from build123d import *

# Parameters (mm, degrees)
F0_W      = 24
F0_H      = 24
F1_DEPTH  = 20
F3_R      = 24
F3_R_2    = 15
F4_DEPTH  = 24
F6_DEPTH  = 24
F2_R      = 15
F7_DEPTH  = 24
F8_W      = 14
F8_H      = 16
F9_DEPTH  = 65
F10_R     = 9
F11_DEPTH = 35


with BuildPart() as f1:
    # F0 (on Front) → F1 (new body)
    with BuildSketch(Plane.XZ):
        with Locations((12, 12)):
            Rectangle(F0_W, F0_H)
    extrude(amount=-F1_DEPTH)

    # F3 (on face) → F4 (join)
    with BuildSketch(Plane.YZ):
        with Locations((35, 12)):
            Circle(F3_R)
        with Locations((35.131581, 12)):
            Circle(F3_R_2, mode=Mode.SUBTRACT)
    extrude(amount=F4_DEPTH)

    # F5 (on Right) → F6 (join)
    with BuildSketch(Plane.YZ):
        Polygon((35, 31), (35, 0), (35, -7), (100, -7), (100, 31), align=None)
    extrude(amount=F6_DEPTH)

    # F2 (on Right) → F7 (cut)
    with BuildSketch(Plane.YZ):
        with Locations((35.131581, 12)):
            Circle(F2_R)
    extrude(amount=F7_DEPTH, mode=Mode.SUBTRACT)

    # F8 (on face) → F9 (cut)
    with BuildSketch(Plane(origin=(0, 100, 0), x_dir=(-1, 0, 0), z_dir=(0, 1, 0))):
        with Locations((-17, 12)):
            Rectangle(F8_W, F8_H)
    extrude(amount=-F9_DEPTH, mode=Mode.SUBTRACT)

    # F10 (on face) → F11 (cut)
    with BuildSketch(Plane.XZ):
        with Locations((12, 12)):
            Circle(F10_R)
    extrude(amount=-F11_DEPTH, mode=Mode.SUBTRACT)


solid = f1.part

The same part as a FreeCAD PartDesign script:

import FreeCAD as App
import Part
import Sketcher

V = App.Vector
Q = App.Units.Quantity

doc = App.newDocument("Part")
params = doc.addObject("Spreadsheet::Sheet", "Params")
for row, (alias, value) in enumerate([
    ("sketch1_width", "24 mm"),
    ("pad1_length", "20 mm"),
    ("sketch2_diameter", "48 mm"),
    ("sketch2_diameter2", "30 mm"),
    ("pad2_length", "24 mm"),
    ("sketch3_width", "65 mm"),
    ("sketch3_height", "38 mm"),
    ("pad3_length", "24 mm"),
    ("sketch4_diameter", "30 mm"),
    ("pocket1_length", "24 mm"),
    ("sketch5_width", "14 mm"),
    ("sketch5_height", "16 mm"),
    ("pocket2_length", "65 mm"),
    ("sketch6_diameter", "18 mm"),
    ("pocket3_length", "35 mm"),
], start=1):
    params.set(f"A{row}", alias)
    params.set(f"B{row}", "=" + value)
    params.setAlias(f"B{row}", alias)

body = doc.addObject("PartDesign::Body", "Body")

# Sketch on XZ plane
sketch1 = body.newObject("Sketcher::SketchObject", "Sketch")
sketch1.AttachmentSupport = (doc.getObject("XZ_Plane"), [""])
sketch1.MapMode = "FlatFace"
sketch1.addGeometry(Part.LineSegment(V(0, 24, 0), V(0, 0, 0)), False)
sketch1.addGeometry(Part.LineSegment(V(0, 0, 0), V(24, 0, 0)), False)
sketch1.addGeometry(Part.LineSegment(V(24, 0, 0), V(24, 24, 0)), False)
sketch1.addGeometry(Part.LineSegment(V(24, 24, 0), V(0, 24, 0)), False)
sketch1.addConstraint(Sketcher.Constraint("Coincident", 0, 2, 1, 1))
sketch1.addConstraint(Sketcher.Constraint("Coincident", 1, 2, 2, 1))
sketch1.addConstraint(Sketcher.Constraint("Coincident", 2, 2, 3, 1))
sketch1.addConstraint(Sketcher.Constraint("Coincident", 3, 2, 0, 1))
sketch1.addConstraint(Sketcher.Constraint("Vertical", 0))
sketch1.addConstraint(Sketcher.Constraint("Horizontal", 1))
sketch1.addConstraint(Sketcher.Constraint("Vertical", 2))
sketch1.addConstraint(Sketcher.Constraint("Horizontal", 3))
sketch1.addConstraint(Sketcher.Constraint("Coincident", 0, 2, -1, 1))
sketch1.addConstraint(Sketcher.Constraint("Equal", 3, 0))
sketch1.addConstraint(Sketcher.Constraint("DistanceX", 1, 1, 1, 2, Q("24 mm")))
sketch1.setExpression("Constraints[10]", "Params.sketch1_width")
pad1 = body.newObject("PartDesign::Pad", "Pad")
pad1.Profile = sketch1
pad1.setExpression("Length", "Params.pad1_length")
pad1.Reversed = True

# Sketch on YZ plane
sketch2 = body.newObject("Sketcher::SketchObject", "Sketch001")
sketch2.AttachmentSupport = (doc.getObject("YZ_Plane"), [""])
sketch2.MapMode = "FlatFace"
sketch2.addGeometry(Part.Circle(V(35, 12, 0), V(0, 0, 1), 24), False)
sketch2.addGeometry(Part.Circle(V(35.131581, 12, 0), V(0, 0, 1), 15), False)
sketch2.addConstraint(Sketcher.Constraint("Horizontal", 0, 3, 1, 3))
sketch2.addConstraint(Sketcher.Constraint("Diameter", 0, Q("48 mm")))
sketch2.addConstraint(Sketcher.Constraint("Diameter", 1, Q("30 mm")))
sketch2.addConstraint(Sketcher.Constraint("DistanceX", -1, 1, 0, 3, Q("35 mm")))
sketch2.addConstraint(Sketcher.Constraint("DistanceY", -1, 1, 0, 3, Q("12 mm")))
sketch2.addConstraint(Sketcher.Constraint("DistanceX", -1, 1, 1, 3, Q("35.131581 mm")))
sketch2.setExpression("Constraints[1]", "Params.sketch2_diameter")
sketch2.setExpression("Constraints[2]", "Params.sketch2_diameter2")
pad2 = body.newObject("PartDesign::Pad", "Pad001")
pad2.Profile = sketch2
pad2.setExpression("Length", "Params.pad2_length")

# Sketch on YZ plane
sketch3 = body.newObject("Sketcher::SketchObject", "Sketch002")
sketch3.AttachmentSupport = (doc.getObject("YZ_Plane"), [""])
sketch3.MapMode = "FlatFace"
sketch3.addGeometry(Part.LineSegment(V(35, 31, 0), V(35, -7, 0)), False)
sketch3.addGeometry(Part.LineSegment(V(35, -7, 0), V(100, -7, 0)), False)
sketch3.addGeometry(Part.LineSegment(V(100, -7, 0), V(100, 31, 0)), False)
sketch3.addGeometry(Part.LineSegment(V(100, 31, 0), V(35, 31, 0)), False)
sketch3.addConstraint(Sketcher.Constraint("Coincident", 0, 2, 1, 1))
sketch3.addConstraint(Sketcher.Constraint("Coincident", 1, 2, 2, 1))
sketch3.addConstraint(Sketcher.Constraint("Coincident", 2, 2, 3, 1))
sketch3.addConstraint(Sketcher.Constraint("Coincident", 3, 2, 0, 1))
sketch3.addConstraint(Sketcher.Constraint("Vertical", 0))
sketch3.addConstraint(Sketcher.Constraint("Horizontal", 1))
sketch3.addConstraint(Sketcher.Constraint("Vertical", 2))
sketch3.addConstraint(Sketcher.Constraint("Horizontal", 3))
sketch3.addConstraint(Sketcher.Constraint("DistanceX", 1, 1, 1, 2, Q("65 mm")))
sketch3.addConstraint(Sketcher.Constraint("DistanceY", 0, 2, 0, 1, Q("38 mm")))
sketch3.addConstraint(Sketcher.Constraint("DistanceX", -1, 1, 0, 2, Q("35 mm")))
sketch3.addConstraint(Sketcher.Constraint("DistanceY", 0, 2, -1, 1, Q("7 mm")))
sketch3.setExpression("Constraints[8]", "Params.sketch3_width")
sketch3.setExpression("Constraints[9]", "Params.sketch3_height")
pad3 = body.newObject("PartDesign::Pad", "Pad002")
pad3.Profile = sketch3
pad3.setExpression("Length", "Params.pad3_length")

# Sketch on YZ plane
sketch4 = body.newObject("Sketcher::SketchObject", "Sketch003")
sketch4.AttachmentSupport = (doc.getObject("YZ_Plane"), [""])
sketch4.MapMode = "FlatFace"
sketch4.addGeometry(Part.Circle(V(35.131581, 12, 0), V(0, 0, 1), 15), False)
sketch4.addConstraint(Sketcher.Constraint("Diameter", 0, Q("30 mm")))
sketch4.addConstraint(Sketcher.Constraint("DistanceY", -1, 1, 0, 3, Q("12 mm")))
sketch4.addConstraint(Sketcher.Constraint("DistanceX", -1, 1, 0, 3, Q("35.131581 mm")))
sketch4.setExpression("Constraints[0]", "Params.sketch4_diameter")
pocket1 = body.newObject("PartDesign::Pocket", "Pocket")
pocket1.Profile = sketch4
pocket1.setExpression("Length", "Params.pocket1_length")
pocket1.Reversed = True

# Sketch on XZ plane
sketch5 = body.newObject("Sketcher::SketchObject", "Sketch004")
sketch5.AttachmentSupport = (doc.getObject("XZ_Plane"), [""])
sketch5.MapMode = "FlatFace"
sketch5.AttachmentOffset = App.Placement(V(0, 0, -100), App.Rotation())
sketch5.addGeometry(Part.LineSegment(V(24, 20, 0), V(24, 4, 0)), False)
sketch5.addGeometry(Part.LineSegment(V(24, 4, 0), V(10, 4, 0)), False)
sketch5.addGeometry(Part.LineSegment(V(10, 4, 0), V(10, 20, 0)), False)
sketch5.addGeometry(Part.LineSegment(V(10, 20, 0), V(24, 20, 0)), False)
sketch5.addConstraint(Sketcher.Constraint("Coincident", 0, 2, 1, 1))
sketch5.addConstraint(Sketcher.Constraint("Coincident", 1, 2, 2, 1))
sketch5.addConstraint(Sketcher.Constraint("Coincident", 2, 2, 3, 1))
sketch5.addConstraint(Sketcher.Constraint("Coincident", 3, 2, 0, 1))
sketch5.addConstraint(Sketcher.Constraint("Vertical", 0))
sketch5.addConstraint(Sketcher.Constraint("Horizontal", 1))
sketch5.addConstraint(Sketcher.Constraint("Vertical", 2))
sketch5.addConstraint(Sketcher.Constraint("Horizontal", 3))
sketch5.addConstraint(Sketcher.Constraint("DistanceX", 1, 2, 1, 1, Q("14 mm")))
sketch5.addConstraint(Sketcher.Constraint("DistanceY", 0, 2, 0, 1, Q("16 mm")))
sketch5.addConstraint(Sketcher.Constraint("DistanceX", -1, 1, 0, 2, Q("24 mm")))
sketch5.addConstraint(Sketcher.Constraint("DistanceY", -1, 1, 0, 2, Q("4 mm")))
sketch5.setExpression("Constraints[8]", "Params.sketch5_width")
sketch5.setExpression("Constraints[9]", "Params.sketch5_height")
pocket2 = body.newObject("PartDesign::Pocket", "Pocket001")
pocket2.Profile = sketch5
pocket2.setExpression("Length", "Params.pocket2_length")
pocket2.Reversed = True

# Sketch on XZ plane
sketch6 = body.newObject("Sketcher::SketchObject", "Sketch005")
sketch6.AttachmentSupport = (doc.getObject("XZ_Plane"), [""])
sketch6.MapMode = "FlatFace"
sketch6.addGeometry(Part.Circle(V(12, 12, 0), V(0, 0, 1), 9), False)
sketch6.addConstraint(Sketcher.Constraint("Diameter", 0, Q("18 mm")))
sketch6.addConstraint(Sketcher.Constraint("DistanceX", -1, 1, 0, 3, Q("12 mm")))
sketch6.addConstraint(Sketcher.Constraint("DistanceY", -1, 1, 0, 3, Q("12 mm")))
sketch6.setExpression("Constraints[0]", "Params.sketch6_diameter")
pocket3 = body.newObject("PartDesign::Pocket", "Pocket002")
pocket3.Profile = sketch6
pocket3.setExpression("Length", "Params.pocket3_length")

doc.recompute()
